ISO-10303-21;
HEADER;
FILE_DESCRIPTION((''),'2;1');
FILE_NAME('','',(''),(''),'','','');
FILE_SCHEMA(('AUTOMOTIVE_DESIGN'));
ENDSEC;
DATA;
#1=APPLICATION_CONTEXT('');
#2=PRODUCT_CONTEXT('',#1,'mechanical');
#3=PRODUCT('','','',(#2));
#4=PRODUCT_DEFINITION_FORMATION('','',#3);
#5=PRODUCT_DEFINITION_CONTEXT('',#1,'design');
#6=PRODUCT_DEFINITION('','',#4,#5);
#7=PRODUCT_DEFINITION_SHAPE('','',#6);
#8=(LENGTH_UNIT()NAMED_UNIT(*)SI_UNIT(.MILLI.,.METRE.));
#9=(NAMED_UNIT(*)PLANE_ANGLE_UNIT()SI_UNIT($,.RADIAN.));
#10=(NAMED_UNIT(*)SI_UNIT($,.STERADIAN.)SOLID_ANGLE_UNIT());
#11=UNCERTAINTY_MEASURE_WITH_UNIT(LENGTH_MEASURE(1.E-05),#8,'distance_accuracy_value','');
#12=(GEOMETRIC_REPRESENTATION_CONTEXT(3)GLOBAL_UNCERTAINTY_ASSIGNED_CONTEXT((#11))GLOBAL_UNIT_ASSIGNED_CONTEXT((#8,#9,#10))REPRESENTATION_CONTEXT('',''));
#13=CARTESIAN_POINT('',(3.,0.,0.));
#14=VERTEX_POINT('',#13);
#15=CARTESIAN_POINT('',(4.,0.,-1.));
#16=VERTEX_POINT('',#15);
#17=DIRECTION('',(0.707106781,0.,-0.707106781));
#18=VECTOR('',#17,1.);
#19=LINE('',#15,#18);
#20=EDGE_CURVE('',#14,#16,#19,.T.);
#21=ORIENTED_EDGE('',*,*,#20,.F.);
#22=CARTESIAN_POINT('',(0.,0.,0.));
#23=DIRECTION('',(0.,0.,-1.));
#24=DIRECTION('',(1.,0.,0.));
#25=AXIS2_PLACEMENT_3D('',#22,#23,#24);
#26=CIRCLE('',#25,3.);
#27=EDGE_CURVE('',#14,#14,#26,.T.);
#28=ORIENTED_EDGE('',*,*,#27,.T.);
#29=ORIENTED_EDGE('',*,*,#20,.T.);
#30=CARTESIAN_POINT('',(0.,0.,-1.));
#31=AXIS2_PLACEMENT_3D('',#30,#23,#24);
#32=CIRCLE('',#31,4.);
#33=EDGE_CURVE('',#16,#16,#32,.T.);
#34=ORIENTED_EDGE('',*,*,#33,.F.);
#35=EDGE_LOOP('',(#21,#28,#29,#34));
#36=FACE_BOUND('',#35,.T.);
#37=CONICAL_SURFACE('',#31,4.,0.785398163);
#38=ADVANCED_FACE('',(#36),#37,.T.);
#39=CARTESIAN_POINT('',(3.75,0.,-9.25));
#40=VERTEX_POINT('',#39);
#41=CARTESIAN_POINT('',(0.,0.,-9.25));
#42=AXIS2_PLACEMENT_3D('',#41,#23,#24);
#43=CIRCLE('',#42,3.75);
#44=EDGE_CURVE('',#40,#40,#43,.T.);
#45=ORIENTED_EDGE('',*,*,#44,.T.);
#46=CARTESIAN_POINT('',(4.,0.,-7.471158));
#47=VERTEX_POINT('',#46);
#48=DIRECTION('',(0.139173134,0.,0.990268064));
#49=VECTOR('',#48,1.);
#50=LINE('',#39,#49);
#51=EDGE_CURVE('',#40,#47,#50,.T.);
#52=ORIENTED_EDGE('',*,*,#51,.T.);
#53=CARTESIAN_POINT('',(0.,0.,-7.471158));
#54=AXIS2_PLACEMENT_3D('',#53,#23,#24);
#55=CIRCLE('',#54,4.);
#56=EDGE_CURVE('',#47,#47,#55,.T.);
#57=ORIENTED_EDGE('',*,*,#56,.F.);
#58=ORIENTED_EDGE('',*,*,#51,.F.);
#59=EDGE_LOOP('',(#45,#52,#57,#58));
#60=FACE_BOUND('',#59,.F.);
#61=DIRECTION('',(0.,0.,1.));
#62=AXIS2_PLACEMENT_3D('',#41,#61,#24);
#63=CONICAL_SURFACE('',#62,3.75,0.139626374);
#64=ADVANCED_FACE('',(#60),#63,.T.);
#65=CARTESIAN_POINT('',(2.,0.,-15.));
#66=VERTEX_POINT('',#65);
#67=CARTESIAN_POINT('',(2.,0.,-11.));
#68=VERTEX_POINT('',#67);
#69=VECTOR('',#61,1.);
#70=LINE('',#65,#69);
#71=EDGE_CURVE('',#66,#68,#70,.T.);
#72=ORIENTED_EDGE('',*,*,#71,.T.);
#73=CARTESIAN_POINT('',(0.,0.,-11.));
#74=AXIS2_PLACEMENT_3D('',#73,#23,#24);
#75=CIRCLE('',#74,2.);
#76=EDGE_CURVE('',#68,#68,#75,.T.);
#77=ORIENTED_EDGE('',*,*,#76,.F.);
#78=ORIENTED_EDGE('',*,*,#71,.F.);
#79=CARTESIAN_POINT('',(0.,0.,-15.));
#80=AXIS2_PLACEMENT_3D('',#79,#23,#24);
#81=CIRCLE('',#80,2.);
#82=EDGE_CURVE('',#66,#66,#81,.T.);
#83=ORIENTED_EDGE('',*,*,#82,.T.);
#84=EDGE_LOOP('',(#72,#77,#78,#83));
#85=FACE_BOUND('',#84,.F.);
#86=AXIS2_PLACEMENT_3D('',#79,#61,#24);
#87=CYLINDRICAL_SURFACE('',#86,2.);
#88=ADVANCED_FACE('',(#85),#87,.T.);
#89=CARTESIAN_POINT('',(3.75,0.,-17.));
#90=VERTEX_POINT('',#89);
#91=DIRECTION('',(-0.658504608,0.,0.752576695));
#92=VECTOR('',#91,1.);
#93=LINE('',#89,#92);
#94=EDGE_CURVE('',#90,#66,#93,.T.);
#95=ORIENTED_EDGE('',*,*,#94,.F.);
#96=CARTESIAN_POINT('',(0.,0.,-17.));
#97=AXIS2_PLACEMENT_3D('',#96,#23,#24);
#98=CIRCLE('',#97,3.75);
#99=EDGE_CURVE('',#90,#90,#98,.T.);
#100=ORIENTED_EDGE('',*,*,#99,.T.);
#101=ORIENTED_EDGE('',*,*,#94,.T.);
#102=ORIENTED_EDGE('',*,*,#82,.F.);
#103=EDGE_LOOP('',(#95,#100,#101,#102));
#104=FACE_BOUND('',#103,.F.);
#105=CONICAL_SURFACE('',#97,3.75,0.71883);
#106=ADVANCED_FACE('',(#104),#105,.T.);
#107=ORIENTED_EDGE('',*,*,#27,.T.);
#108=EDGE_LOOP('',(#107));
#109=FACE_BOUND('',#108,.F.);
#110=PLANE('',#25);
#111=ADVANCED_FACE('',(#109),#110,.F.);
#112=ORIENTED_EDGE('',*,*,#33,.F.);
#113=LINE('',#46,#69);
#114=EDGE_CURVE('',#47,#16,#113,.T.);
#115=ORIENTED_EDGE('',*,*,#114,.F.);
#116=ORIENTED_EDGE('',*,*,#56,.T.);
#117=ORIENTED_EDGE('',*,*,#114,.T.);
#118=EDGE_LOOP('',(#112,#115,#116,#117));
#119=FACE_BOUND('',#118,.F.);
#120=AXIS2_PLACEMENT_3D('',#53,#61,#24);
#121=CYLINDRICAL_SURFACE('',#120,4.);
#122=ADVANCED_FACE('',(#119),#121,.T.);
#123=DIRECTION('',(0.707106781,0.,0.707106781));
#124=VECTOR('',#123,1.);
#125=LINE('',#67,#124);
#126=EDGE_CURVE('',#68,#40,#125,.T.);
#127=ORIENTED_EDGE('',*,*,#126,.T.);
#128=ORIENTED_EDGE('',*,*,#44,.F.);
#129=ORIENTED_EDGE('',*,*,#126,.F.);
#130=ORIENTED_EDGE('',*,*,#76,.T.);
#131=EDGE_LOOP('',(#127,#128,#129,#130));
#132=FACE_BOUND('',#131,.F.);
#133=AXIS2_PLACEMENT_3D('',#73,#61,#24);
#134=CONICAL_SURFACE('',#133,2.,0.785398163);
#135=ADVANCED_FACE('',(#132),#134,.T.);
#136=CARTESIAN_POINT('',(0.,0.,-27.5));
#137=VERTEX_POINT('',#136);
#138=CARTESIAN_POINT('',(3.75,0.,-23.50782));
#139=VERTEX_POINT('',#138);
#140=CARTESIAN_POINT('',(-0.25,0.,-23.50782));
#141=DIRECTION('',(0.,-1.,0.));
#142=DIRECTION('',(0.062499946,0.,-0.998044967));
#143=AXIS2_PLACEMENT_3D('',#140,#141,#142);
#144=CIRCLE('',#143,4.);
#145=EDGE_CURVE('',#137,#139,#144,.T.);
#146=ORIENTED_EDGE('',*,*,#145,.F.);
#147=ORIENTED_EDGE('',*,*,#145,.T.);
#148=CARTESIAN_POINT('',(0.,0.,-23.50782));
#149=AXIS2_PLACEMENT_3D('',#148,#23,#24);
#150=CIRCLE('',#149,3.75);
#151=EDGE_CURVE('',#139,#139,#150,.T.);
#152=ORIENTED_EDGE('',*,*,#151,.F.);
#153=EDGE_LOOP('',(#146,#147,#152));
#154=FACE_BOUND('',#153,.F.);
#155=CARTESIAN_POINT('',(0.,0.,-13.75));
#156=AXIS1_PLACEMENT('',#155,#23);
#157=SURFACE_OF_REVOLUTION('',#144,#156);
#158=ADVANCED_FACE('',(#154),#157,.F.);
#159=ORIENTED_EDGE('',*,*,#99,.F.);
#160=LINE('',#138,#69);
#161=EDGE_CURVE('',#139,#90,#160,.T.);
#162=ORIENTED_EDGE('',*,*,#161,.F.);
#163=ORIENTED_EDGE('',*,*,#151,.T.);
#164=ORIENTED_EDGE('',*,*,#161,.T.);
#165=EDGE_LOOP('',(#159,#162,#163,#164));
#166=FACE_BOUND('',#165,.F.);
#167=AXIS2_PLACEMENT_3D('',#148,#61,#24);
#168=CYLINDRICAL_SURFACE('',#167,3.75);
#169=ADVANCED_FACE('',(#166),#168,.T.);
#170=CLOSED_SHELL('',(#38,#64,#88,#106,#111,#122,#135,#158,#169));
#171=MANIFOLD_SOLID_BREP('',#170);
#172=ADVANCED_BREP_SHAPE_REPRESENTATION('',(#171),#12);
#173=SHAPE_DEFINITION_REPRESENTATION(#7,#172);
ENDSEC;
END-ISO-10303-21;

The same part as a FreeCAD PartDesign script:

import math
import FreeCAD as App
import Part
import Sketcher
Q = App.Units.Quantity


def edges_at(feature, points):
    """Names of the edges that pass closest to the given points."""
    edges = feature.Shape.Edges
    near = lambda p: min(range(len(edges)), key=lambda i: edges[i].distToShape(Part.Vertex(*p))[0])
    return sorted({f"Edge{near(p) + 1}" for p in points})

doc = App.newDocument("Part")
body = doc.addObject("PartDesign::Body", "Body")

sketch1 = body.newObject("Sketcher::SketchObject", "Sketch")
sketch1.AttachmentSupport = (doc.getObject("XZ_Plane"), [""])
sketch1.MapMode = "FlatFace"
sketch1.addGeometry([
    Part.LineSegment(App.Vector(4, 0, 0), App.Vector(0, 0, 0)),
    Part.LineSegment(App.Vector(0, 0, 0), App.Vector(0, -27.5, 0)),
    Part.ArcOfCircle(Part.Circle(App.Vector(-0.2, -23.5, 0), App.Vector(0, 0, 1), 4), math.radians(-86), math.radians(0)),
    Part.LineSegment(App.Vector(3.8, -23.5, 0), App.Vector(3.8, -17, 0)),
    Part.LineSegment(App.Vector(3.8, -17, 0), App.Vector(2, -15, 0)),
    Part.LineSegment(App.Vector(2, -15, 0), App.Vector(2, -11, 0)),
    Part.LineSegment(App.Vector(2, -11, 0), App.Vector(3.8, -9.2, 0)),
    Part.LineSegment(App.Vector(3.8, -9.2, 0), App.Vector(4, -7.5, 0)),
    Part.LineSegment(App.Vector(4, -7.5, 0), App.Vector(4, 0, 0)),
], False)
sketch1.addConstraint([
    Sketcher.Constraint("Coincident", 0, 2, 1, 1),
    Sketcher.Constraint("Coincident", 1, 2, 2, 1),
    Sketcher.Constraint("Tangent", 2, 2, 3, 1),
    Sketcher.Constraint("Coincident", 3, 2, 4, 1),
    Sketcher.Constraint("Coincident", 4, 2, 5, 1),
    Sketcher.Constraint("Coincident", 5, 2, 6, 1),
    Sketcher.Constraint("Coincident", 6, 2, 7, 1),
    Sketcher.Constraint("Coincident", 7, 2, 8, 1),
    Sketcher.Constraint("Coincident", 8, 2, 0, 1),
    Sketcher.Constraint("Horizontal", 0),
    Sketcher.Constraint("Vertical", 1),
    Sketcher.Constraint("Vertical", 3),
    Sketcher.Constraint("Vertical", 5),
    Sketcher.Constraint("Vertical", 8),
    Sketcher.Constraint("Coincident", 0, 2, -1, 1),
    Sketcher.Constraint("Vertical", 3, 2, 6, 2),
    Sketcher.Constraint("Equal", 0, 5),
    Sketcher.Constraint("Radius", 2, Q("4 mm")),
    Sketcher.Constraint("DistanceX", 0, 2, 0, 1, Q("4 mm")),
    Sketcher.Constraint("Angle", 6, Q("45 deg")),
    Sketcher.Constraint("Angle", 7, Q("81.999998 deg")),
    Sketcher.Constraint("DistanceY", 1, 2, 1, 1, Q("27.5 mm")),
    Sketcher.Constraint("DistanceY", 3, 2, -1, 1, Q("17 mm")),
    Sketcher.Constraint("DistanceX", -1, 1, 4, 2, Q("2 mm")),
    Sketcher.Constraint("DistanceY", 4, 2, -1, 1, Q("15 mm")),
    Sketcher.Constraint("DistanceX", 2, 3, -1, 1, Q("0.25 mm")),
])
revolution = body.newObject("PartDesign::Revolution", "Revolution")
revolution.Profile = sketch1
revolution.ReferenceAxis = (sketch1, ["V_Axis"])
revolution.Angle = 360
doc.recompute()

chamfer = body.newObject("PartDesign::Chamfer", "Chamfer")
chamfer.Base = (revolution, edges_at(revolution, [(-4, 0, 0)]))
chamfer.Size = 1

doc.recompute()
